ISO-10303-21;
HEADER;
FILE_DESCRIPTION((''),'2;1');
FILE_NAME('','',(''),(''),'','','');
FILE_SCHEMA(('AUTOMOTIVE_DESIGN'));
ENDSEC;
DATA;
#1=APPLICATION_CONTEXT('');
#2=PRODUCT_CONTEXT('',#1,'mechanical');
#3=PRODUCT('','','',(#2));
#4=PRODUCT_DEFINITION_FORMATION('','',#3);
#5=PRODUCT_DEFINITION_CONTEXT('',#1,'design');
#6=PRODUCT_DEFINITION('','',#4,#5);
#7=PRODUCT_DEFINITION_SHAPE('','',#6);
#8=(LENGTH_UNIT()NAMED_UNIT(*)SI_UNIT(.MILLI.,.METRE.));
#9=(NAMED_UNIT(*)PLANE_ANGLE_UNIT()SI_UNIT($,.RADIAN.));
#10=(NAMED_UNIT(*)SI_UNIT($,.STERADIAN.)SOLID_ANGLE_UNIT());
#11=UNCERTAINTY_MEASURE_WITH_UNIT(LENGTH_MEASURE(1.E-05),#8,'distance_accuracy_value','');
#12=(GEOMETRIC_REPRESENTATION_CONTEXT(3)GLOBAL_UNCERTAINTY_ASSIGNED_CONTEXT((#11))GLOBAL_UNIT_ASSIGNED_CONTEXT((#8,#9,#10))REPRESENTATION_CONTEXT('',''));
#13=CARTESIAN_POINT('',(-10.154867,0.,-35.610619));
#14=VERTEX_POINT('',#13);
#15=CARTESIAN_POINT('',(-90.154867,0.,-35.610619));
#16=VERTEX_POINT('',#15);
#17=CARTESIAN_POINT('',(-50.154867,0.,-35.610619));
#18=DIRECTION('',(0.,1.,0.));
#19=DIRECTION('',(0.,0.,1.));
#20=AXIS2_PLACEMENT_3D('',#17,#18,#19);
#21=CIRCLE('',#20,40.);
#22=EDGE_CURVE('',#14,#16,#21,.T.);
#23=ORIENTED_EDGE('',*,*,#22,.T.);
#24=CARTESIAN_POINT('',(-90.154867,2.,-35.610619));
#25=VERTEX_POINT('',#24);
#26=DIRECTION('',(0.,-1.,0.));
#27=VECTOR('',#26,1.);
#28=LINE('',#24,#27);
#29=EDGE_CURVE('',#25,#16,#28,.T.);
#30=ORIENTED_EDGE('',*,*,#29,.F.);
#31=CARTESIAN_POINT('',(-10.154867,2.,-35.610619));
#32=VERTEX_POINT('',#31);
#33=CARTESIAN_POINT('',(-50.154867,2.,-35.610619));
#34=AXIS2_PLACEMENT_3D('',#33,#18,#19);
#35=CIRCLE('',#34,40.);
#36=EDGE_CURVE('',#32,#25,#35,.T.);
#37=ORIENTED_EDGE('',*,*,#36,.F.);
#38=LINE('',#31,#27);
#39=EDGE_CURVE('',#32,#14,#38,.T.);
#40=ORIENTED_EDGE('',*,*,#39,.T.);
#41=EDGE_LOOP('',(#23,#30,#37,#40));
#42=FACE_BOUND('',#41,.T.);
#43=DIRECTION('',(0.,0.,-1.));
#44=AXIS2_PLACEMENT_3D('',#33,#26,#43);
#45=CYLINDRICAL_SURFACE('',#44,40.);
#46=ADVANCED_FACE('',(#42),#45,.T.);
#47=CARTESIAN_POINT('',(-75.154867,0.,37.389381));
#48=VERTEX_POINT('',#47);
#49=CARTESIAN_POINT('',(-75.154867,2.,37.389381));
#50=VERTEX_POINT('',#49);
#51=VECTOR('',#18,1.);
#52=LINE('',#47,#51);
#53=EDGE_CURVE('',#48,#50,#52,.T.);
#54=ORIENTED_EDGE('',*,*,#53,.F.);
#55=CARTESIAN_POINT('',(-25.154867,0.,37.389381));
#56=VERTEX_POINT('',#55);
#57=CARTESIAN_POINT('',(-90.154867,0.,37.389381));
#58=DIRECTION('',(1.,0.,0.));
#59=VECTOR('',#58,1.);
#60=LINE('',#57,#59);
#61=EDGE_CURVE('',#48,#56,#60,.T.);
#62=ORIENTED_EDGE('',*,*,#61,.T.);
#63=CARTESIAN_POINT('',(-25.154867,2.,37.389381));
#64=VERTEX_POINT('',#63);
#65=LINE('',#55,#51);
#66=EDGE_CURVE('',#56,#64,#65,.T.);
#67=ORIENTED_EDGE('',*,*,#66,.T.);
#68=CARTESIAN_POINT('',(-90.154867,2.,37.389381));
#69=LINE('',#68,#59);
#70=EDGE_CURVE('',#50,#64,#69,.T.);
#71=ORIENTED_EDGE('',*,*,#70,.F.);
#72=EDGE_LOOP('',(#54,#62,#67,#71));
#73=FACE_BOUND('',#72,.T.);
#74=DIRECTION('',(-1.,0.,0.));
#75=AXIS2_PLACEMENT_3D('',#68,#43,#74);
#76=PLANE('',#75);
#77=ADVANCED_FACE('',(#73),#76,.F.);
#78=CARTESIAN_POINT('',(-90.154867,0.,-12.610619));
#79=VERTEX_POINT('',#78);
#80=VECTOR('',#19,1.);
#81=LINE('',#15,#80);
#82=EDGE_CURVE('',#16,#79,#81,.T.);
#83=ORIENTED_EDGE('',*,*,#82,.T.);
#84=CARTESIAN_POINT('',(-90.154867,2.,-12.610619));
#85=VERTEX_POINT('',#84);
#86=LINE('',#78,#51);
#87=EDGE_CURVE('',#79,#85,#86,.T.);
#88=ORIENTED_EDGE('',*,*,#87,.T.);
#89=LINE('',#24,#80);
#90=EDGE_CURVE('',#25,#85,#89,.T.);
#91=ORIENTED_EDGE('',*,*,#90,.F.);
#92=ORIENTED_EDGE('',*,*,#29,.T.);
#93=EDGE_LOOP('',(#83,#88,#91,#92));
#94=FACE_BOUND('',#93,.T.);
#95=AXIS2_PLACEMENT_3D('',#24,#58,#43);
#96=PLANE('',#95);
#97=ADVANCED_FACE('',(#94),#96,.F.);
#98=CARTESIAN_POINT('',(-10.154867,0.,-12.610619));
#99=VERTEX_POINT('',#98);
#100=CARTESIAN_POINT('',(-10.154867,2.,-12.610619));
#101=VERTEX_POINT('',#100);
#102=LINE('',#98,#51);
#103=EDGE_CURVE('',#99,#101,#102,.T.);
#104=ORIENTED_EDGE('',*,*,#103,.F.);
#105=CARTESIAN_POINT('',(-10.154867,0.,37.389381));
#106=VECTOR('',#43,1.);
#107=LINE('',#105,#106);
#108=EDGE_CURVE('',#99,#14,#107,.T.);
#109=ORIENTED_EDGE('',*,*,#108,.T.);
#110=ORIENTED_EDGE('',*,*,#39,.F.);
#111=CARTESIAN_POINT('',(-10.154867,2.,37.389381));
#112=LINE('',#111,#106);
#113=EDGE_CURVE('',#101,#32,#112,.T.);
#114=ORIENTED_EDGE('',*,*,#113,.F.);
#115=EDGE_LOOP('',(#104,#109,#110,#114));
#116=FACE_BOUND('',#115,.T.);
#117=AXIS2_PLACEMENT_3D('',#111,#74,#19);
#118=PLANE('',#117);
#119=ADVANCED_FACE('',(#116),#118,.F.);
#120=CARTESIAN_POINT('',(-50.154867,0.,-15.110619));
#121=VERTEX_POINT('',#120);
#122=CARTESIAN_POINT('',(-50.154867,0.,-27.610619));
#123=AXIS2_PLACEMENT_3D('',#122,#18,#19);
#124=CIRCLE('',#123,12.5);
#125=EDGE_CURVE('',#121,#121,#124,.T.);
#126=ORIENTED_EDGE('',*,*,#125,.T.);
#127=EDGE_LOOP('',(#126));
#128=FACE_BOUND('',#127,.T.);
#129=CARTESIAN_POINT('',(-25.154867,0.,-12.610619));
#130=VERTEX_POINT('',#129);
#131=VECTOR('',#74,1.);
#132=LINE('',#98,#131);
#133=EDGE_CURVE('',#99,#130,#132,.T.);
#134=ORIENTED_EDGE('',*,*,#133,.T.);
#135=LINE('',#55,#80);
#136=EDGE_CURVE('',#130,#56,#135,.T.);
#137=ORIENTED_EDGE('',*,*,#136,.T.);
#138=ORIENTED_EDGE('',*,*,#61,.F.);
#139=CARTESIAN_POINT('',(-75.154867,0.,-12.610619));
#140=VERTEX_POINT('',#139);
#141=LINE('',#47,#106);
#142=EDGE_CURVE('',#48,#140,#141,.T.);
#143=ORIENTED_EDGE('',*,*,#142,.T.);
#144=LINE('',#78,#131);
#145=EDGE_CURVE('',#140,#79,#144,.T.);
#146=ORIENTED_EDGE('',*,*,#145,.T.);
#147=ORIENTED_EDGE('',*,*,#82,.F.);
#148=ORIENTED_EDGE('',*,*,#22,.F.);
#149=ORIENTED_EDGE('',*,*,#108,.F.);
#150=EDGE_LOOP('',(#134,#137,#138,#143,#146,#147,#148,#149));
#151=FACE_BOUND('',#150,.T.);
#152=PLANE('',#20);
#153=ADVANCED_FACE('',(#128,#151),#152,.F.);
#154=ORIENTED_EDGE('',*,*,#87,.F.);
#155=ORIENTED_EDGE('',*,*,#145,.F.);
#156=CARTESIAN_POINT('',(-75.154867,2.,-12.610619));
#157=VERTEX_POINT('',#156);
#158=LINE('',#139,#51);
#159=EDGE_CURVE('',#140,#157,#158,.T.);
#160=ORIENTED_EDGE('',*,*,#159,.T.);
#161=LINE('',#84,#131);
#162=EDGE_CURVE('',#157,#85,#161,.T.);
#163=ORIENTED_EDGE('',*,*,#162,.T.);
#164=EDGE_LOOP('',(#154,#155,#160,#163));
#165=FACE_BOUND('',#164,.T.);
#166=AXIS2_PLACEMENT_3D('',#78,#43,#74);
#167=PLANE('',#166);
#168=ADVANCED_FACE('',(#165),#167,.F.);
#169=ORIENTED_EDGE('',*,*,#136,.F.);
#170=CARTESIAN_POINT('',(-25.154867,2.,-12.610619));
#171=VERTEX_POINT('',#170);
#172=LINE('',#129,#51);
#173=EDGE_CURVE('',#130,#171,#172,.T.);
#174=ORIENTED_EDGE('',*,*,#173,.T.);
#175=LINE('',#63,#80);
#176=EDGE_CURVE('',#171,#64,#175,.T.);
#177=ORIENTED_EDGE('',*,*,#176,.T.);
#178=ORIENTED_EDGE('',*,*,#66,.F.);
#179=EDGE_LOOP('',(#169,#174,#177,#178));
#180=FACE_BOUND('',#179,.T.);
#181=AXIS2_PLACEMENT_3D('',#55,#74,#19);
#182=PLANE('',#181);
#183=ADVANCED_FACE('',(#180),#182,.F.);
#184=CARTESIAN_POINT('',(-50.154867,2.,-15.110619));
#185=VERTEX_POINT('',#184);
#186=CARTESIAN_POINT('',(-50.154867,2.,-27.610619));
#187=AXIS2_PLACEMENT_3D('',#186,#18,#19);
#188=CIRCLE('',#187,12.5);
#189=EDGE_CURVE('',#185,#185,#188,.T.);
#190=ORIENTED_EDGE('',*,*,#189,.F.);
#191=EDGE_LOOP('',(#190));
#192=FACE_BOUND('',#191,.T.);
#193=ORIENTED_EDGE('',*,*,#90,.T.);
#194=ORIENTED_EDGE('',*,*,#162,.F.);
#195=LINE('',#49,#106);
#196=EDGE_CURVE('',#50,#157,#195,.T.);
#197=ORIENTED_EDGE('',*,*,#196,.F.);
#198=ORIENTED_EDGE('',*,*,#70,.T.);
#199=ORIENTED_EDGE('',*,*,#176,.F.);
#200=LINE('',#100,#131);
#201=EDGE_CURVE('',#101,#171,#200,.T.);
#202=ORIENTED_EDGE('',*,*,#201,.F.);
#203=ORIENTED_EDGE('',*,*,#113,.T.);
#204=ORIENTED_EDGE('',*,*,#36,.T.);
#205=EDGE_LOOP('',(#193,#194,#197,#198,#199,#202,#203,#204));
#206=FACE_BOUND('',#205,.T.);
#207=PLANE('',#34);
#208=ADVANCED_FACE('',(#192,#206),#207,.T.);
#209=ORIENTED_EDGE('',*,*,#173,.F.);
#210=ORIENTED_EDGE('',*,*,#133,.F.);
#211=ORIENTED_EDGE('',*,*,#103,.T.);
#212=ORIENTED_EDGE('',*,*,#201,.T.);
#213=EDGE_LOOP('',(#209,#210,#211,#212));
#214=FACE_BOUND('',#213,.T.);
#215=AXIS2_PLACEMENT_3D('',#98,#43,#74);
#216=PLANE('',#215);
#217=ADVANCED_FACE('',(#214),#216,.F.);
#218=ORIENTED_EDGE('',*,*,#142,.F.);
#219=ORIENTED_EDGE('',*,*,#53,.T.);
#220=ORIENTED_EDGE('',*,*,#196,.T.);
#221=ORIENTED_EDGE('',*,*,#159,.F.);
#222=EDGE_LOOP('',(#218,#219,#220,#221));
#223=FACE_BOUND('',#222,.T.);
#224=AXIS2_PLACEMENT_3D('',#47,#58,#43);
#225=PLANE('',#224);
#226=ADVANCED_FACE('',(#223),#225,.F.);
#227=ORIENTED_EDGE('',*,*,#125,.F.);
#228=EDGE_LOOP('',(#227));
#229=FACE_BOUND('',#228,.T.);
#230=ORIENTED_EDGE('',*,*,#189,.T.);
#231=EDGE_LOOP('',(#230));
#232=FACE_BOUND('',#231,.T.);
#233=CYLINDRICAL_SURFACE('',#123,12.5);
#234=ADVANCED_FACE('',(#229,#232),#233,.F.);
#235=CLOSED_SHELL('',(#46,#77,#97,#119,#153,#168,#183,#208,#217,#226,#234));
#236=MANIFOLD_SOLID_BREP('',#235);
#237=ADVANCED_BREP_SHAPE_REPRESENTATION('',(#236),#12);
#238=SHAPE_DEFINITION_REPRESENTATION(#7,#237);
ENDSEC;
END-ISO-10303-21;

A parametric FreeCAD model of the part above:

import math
import FreeCAD as App
import Part
import Sketcher

V = App.Vector
Q = App.Units.Quantity

doc = App.newDocument("Part")
body = doc.addObject("PartDesign::Body", "Body")

sketch1 = body.newObject("Sketcher::SketchObject", "Sketch")
sketch1.AttachmentSupport = (doc.getObject("XZ_Plane"), [""])
sketch1.MapMode = "FlatFace"
sketch1.addGeometry(Part.LineSegment(V(-90.154867, -35.610619, 0), V(-90.154867, 37.389381, 0)), False)
sketch1.addGeometry(Part.LineSegment(V(-90.154867, 37.389381, 0), V(-10.154867, 37.389381, 0)), False)
sketch1.addGeometry(Part.LineSegment(V(-10.154867, 37.389381, 0), V(-10.154867, -35.610619, 0)), False)
sketch1.addGeometry(Part.ArcOfCircle(Part.Circle(V(-50.154867, -35.610619, 0), V(0, 0, 1), 40), math.radians(180), math.radians(360)), False)
sketch1.addConstraint(Sketcher.Constraint("Coincident", 0, 2, 1, 1))
sketch1.addConstraint(Sketcher.Constraint("Coincident", 1, 2, 2, 1))
sketch1.addConstraint(Sketcher.Constraint("Tangent", 2, 2, 3, 2))
sketch1.addConstraint(Sketcher.Constraint("Tangent", 3, 1, 0, 1))
sketch1.addConstraint(Sketcher.Constraint("Vertical", 0))
sketch1.addConstraint(Sketcher.Constraint("Horizontal", 1))
sketch1.addConstraint(Sketcher.Constraint("Vertical", 2))
sketch1.addConstraint(Sketcher.Constraint("Radius", 3, Q("40 mm")))
sketch1.addConstraint(Sketcher.Constraint("DistanceY", 0, 1, 0, 2, Q("73 mm")))
sketch1.addConstraint(Sketcher.Constraint("DistanceY", 3, 3, -1, 1, Q("35.610619 mm")))
sketch1.addConstraint(Sketcher.Constraint("DistanceX", 3, 3, -1, 1, Q("50.154867 mm")))
pad1 = body.newObject("PartDesign::Pad", "Pad")
pad1.Profile = sketch1
pad1.Length = 2
pad1.Reversed = True

sketch2 = body.newObject("Sketcher::SketchObject", "Sketch001")
sketch2.AttachmentSupport = (doc.getObject("XZ_Plane"), [""])
sketch2.MapMode = "FlatFace"
sketch2.AttachmentOffset = App.Placement(V(0, 0, -2), App.Rotation())
sketch2.addGeometry(Part.Circle(V(-50.154867, -27.610619, 0), V(0, 0, 1), 12.5), False)
sketch2.addGeometry(Part.LineSegment(V(-90.154867, -12.610619, 0), V(-90.154867, 37.389381, 0)), False)
sketch2.addGeometry(Part.LineSegment(V(-90.154867, 37.389381, 0), V(-75.154867, 37.389381, 0)), False)
sketch2.addGeometry(Part.LineSegment(V(-75.154867, 37.389381, 0), V(-75.154867, -12.610619, 0)), False)
sketch2.addGeometry(Part.LineSegment(V(-75.154867, -12.610619, 0), V(-90.154867, -12.610619, 0)), False)
sketch2.addGeometry(Part.LineSegment(V(-25.154867, -12.610619, 0), V(-25.154867, 37.389381, 0)), False)
sketch2.addGeometry(Part.LineSegment(V(-25.154867, 37.389381, 0), V(-10.154867, 37.389381, 0)), False)
sketch2.addGeometry(Part.LineSegment(V(-10.154867, 37.389381, 0), V(-10.154867, -12.610619, 0)), False)
sketch2.addGeometry(Part.LineSegment(V(-10.154867, -12.610619, 0), V(-25.154867, -12.610619, 0)), False)
sketch2.addConstraint(Sketcher.Constraint("Coincident", 1, 2, 2, 1))
sketch2.addConstraint(Sketcher.Constraint("Coincident", 2, 2, 3, 1))
sketch2.addConstraint(Sketcher.Constraint("Coincident", 3, 2, 4, 1))
sketch2.addConstraint(Sketcher.Constraint("Coincident", 4, 2, 1, 1))
sketch2.addConstraint(Sketcher.Constraint("Coincident", 5, 2, 6, 1))
sketch2.addConstraint(Sketcher.Constraint("Coincident", 6, 2, 7, 1))
sketch2.addConstraint(Sketcher.Constraint("Coincident", 7, 2, 8, 1))
sketch2.addConstraint(Sketcher.Constraint("Coincident", 8, 2, 5, 1))
sketch2.addConstraint(Sketcher.Constraint("Vertical", 1))
sketch2.addConstraint(Sketcher.Constraint("Horizontal", 2))
sketch2.addConstraint(Sketcher.Constraint("Vertical", 3))
sketch2.addConstraint(Sketcher.Constraint("Horizontal", 4))
sketch2.addConstraint(Sketcher.Constraint("Vertical", 5))
sketch2.addConstraint(Sketcher.Constraint("Horizontal", 6))
sketch2.addConstraint(Sketcher.Constraint("Vertical", 7))
sketch2.addConstraint(Sketcher.Constraint("Horizontal", 8))
sketch2.addConstraint(Sketcher.Constraint("Horizontal", 2, 2, 5, 2))
sketch2.addConstraint(Sketcher.Constraint("Horizontal", 4, 2, 7, 2))
sketch2.addConstraint(Sketcher.Constraint("Equal", 4, 6))
sketch2.addConstraint(Sketcher.Constraint("Diameter", 0, Q("25 mm")))
sketch2.addConstraint(Sketcher.Constraint("DistanceX", 2, 1, 2, 2, Q("15 mm")))
sketch2.addConstraint(Sketcher.Constraint("DistanceY", 1, 1, 1, 2, Q("50 mm")))
sketch2.addConstraint(Sketcher.Constraint("DistanceX", 1, 2, 0, 3, Q("40 mm")))
sketch2.addConstraint(Sketcher.Constraint("DistanceY", 0, 3, 1, 2, Q("65 mm")))
sketch2.addConstraint(Sketcher.Constraint("DistanceX", 2, 2, 5, 2, Q("50 mm")))
sketch2.addConstraint(Sketcher.Constraint("DistanceY", 0, 3, -1, 1, Q("27.610619 mm")))
sketch2.addConstraint(Sketcher.Constraint("DistanceX", 0, 3, -1, 1, Q("50.154867 mm")))
pocket1 = body.newObject("PartDesign::Pocket", "Pocket")
pocket1.Profile = sketch2
pocket1.Length = 2
pocket1.Reversed = True

doc.recompute()
